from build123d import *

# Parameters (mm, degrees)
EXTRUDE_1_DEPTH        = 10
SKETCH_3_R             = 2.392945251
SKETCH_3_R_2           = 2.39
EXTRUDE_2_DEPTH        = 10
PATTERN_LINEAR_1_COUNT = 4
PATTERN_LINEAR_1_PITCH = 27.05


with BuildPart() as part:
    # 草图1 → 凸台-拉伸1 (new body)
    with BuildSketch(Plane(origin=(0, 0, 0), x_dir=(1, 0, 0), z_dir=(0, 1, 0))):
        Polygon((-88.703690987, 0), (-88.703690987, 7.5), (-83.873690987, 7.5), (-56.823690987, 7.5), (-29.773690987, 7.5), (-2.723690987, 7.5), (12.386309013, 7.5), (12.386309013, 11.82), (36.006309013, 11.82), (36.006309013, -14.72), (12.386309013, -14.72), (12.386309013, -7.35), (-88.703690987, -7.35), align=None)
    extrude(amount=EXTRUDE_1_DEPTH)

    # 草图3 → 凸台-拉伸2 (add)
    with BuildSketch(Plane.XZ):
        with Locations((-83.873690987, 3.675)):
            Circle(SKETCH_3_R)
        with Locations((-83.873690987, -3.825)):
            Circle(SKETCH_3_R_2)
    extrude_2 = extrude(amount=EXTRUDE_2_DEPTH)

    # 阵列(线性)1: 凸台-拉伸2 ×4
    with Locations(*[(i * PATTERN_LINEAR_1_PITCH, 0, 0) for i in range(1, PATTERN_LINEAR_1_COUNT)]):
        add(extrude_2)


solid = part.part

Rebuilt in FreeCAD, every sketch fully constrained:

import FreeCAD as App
import Part
import Sketcher


def add_polygon(sketch, points):
    """Adds a closed chain of lines whose ends are joined by coincident constraints."""
    first, n = sketch.GeometryCount, len(points)
    for a, b in zip(points, points[1:] + points[:1]):
        sketch.addGeometry(Part.LineSegment(App.Vector(*a, 0), App.Vector(*b, 0)), False)
    for i in range(n):
        sketch.addConstraint(Sketcher.Constraint("Coincident", first + i, 2, first + (i + 1) % n, 1))

doc = App.newDocument("Part")
body = doc.addObject("PartDesign::Body", "Body")

sketch1 = body.newObject("Sketcher::SketchObject", "Sketch")
sketch1.AttachmentSupport = (doc.getObject("XZ_Plane"), [""])
sketch1.MapMode = "FlatFace"
add_polygon(sketch1, [(-88.703691, -7.5), (-88.703691, 7.35), (12.386309, 7.35), (12.386309, 14.72), (36.006309, 14.72), (36.006309, -11.82), (12.386309, -11.82), (12.386309, -7.5)])
sketch1.addConstraint([
    Sketcher.Constraint("Vertical", 0),
    Sketcher.Constraint("Horizontal", 1),
    Sketcher.Constraint("Vertical", 2),
    Sketcher.Constraint("Horizontal", 3),
    Sketcher.Constraint("Vertical", 4),
    Sketcher.Constraint("Horizontal", 5),
    Sketcher.Constraint("Vertical", 6),
    Sketcher.Constraint("Horizontal", 7),
    Sketcher.Constraint("Vertical", 2, 2, 5, 2),
    Sketcher.Constraint("DistanceX", 1, 1, 1, 2, 101.09),
    Sketcher.Constraint("DistanceX", 3, 1, 3, 2, 23.62),
    Sketcher.Constraint("DistanceY", 0, 1, 0, 2, 14.85),
    Sketcher.Constraint("DistanceY", 2, 1, 2, 2, 7.37),
    Sketcher.Constraint("DistanceY", 4, 2, 4, 1, 26.54),
    Sketcher.Constraint("DistanceY", 6, 2, -1, 1, 7.5),
    Sketcher.Constraint("DistanceX", 0, 2, -1, 1, 88.703691),
])
pad1 = body.newObject("PartDesign::Pad", "Pad")
pad1.Profile = sketch1
pad1.Length = 10
pad1.Reversed = True

sketch2 = body.newObject("Sketcher::SketchObject", "Sketch001")
sketch2.AttachmentSupport = (doc.getObject("XZ_Plane"), [""])
sketch2.MapMode = "FlatFace"
sketch2.addGeometry([
    Part.Circle(App.Vector(-83.873691, 3.675, 0), App.Vector(0, 0, 1), 2.392945),
    Part.Circle(App.Vector(-83.873691, -3.825, 0), App.Vector(0, 0, 1), 2.39),
], False)
sketch2.addConstraint([
    Sketcher.Constraint("Vertical", 0, 3, 1, 3),
    Sketcher.Constraint("Diameter", 1, 4.78),
    Sketcher.Constraint("DistanceY", 1, 3, 0, 3, 7.5),
    Sketcher.Constraint("Diameter", 0, 4.785891),
    Sketcher.Constraint("DistanceY", -1, 1, 0, 3, 3.675),
    Sketcher.Constraint("DistanceX", 0, 3, -1, 1, 83.873691),
])
pad2 = body.newObject("PartDesign::Pad", "Pad001")
pad2.Profile = sketch2
pad2.Length = 10
doc.recompute()

linearpattern = body.newObject("PartDesign::LinearPattern", "LinearPattern")
linearpattern.Originals = [pad2]
linearpattern.Direction = (doc.getObject("X_Axis"), [""])
linearpattern.Mode = "offset"
linearpattern.Offset = 27.05
linearpattern.Occurrences = 4
body.Tip = linearpattern

doc.recompute()
